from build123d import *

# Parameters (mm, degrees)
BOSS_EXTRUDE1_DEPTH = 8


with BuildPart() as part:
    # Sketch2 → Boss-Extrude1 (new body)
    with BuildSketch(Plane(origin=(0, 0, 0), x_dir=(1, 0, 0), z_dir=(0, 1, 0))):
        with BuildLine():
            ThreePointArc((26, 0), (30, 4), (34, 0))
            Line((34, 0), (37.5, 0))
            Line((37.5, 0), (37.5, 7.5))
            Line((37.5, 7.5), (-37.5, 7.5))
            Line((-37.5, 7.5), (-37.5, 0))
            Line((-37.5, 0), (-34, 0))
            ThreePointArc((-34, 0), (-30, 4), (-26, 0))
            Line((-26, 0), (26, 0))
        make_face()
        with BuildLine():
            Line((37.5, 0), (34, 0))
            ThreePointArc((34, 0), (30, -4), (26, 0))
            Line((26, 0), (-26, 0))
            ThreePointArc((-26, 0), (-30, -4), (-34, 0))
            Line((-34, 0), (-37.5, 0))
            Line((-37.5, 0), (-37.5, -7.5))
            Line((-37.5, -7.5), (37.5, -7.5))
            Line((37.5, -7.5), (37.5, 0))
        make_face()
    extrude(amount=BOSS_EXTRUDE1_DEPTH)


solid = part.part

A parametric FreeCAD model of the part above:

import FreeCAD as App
import Part
import Sketcher

V = App.Vector
Q = App.Units.Quantity


def add_polygon(sketch, points):
    """Adds a closed chain of lines whose ends are joined by coincident constraints."""
    first, n = sketch.GeometryCount, len(points)
    for a, b in zip(points, points[1:] + points[:1]):
        sketch.addGeometry(Part.LineSegment(App.Vector(*a, 0), App.Vector(*b, 0)), False)
    for i in range(n):
        sketch.addConstraint(Sketcher.Constraint("Coincident", first + i, 2, first + (i + 1) % n, 1))

doc = App.newDocument("Part")
params = doc.addObject("Spreadsheet::Sheet", "Params")
for row, (alias, value) in enumerate([
    ("sketch1_diameter", "8 mm"),
    ("sketch1_width", "75 mm"),
    ("sketch1_height", "15 mm"),
    ("pad1_length", "8 mm"),
], start=1):
    params.set(f"A{row}", alias)
    params.set(f"B{row}", "=" + value)
    params.setAlias(f"B{row}", alias)

body = doc.addObject("PartDesign::Body", "Body")

# Sketch on XZ plane
sketch1 = body.newObject("Sketcher::SketchObject", "Sketch")
sketch1.AttachmentSupport = (doc.getObject("XZ_Plane"), [""])
sketch1.MapMode = "FlatFace"
add_polygon(sketch1, [(37.5, -7.5), (-37.5, -7.5), (-37.5, 7.5), (37.5, 7.5)])  # lines 0-3
sketch1.addGeometry(Part.Circle(V(30, 0, 0), V(0, 0, 1), 4), False)  # 4
sketch1.addGeometry(Part.Circle(V(-30, 0, 0), V(0, 0, 1), 4), False)  # 5
sketch1.addConstraint([
    Sketcher.Constraint("Horizontal", 0),
    Sketcher.Constraint("Vertical", 1),
    Sketcher.Constraint("Horizontal", 2),
    Sketcher.Constraint("Vertical", 3),
    Sketcher.Constraint("Equal", 4, 5),
    Sketcher.Constraint("Symmetric", 4, 3, 5, 3, -1, 1),
    Sketcher.Constraint("Symmetric", 0, 2, 2, 2, -1, 1),
    Sketcher.Constraint("PointOnObject", 4, 3, -1),
    Sketcher.Constraint("Diameter", 4, Q("8 mm")),
    Sketcher.Constraint("DistanceX", 0, 2, 0, 1, Q("75 mm")),
    Sketcher.Constraint("DistanceY", 1, 1, 1, 2, Q("15 mm")),
    Sketcher.Constraint("DistanceX", -1, 1, 4, 3, Q("30 mm")),
])
sketch1.setExpression("Constraints[12]", "Params.sketch1_diameter")
sketch1.setExpression("Constraints[13]", "Params.sketch1_width")
sketch1.setExpression("Constraints[14]", "Params.sketch1_height")
pad1 = body.newObject("PartDesign::Pad", "Pad")
pad1.Profile = sketch1
pad1.setExpression("Length", "Params.pad1_length")
pad1.Reversed = True

doc.recompute()
